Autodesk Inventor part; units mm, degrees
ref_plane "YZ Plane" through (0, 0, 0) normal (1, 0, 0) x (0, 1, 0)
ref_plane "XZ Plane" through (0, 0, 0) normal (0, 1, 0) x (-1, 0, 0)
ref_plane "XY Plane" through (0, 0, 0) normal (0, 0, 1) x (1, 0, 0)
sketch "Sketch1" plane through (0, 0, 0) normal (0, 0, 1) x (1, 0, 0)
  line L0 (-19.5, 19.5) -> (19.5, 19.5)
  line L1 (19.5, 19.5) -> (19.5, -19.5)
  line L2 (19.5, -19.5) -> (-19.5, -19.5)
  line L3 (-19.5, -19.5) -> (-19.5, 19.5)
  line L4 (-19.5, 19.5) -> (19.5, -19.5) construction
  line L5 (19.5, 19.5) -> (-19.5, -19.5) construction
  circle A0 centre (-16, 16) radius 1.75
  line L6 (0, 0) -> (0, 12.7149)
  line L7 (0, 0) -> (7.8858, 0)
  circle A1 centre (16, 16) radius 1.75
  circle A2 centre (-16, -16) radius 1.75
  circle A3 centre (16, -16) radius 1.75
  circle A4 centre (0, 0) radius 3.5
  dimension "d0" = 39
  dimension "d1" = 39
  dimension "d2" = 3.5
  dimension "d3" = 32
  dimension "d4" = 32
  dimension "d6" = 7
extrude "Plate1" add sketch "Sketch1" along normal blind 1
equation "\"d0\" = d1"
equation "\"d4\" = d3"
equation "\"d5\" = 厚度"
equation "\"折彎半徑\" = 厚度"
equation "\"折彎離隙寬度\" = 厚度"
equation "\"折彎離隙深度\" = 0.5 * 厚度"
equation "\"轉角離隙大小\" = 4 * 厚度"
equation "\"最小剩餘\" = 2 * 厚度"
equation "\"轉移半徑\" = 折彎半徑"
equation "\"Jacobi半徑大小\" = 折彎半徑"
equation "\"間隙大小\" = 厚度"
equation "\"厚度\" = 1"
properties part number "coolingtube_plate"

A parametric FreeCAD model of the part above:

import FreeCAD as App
import Part
import Sketcher
Q = App.Units.Quantity

doc = App.newDocument("Part")
body = doc.addObject("PartDesign::Body", "Body")

# Sketch on XY plane
sketch1 = body.newObject("Sketcher::SketchObject", "Sketch")
sketch1.AttachmentSupport = (doc.getObject("XY_Plane"), [""])
sketch1.MapMode = "FlatFace"
sketch1.addGeometry([
    Part.LineSegment(App.Vector(19.5, 19.5, 0), App.Vector(-19.5, 19.5, 0)),  # 0
    Part.LineSegment(App.Vector(-19.5, 19.5, 0), App.Vector(-19.5, -19.5, 0)),  # 1
    Part.LineSegment(App.Vector(-19.5, -19.5, 0), App.Vector(19.5, -19.5, 0)),  # 2
    Part.LineSegment(App.Vector(19.5, -19.5, 0), App.Vector(19.5, 19.5, 0)),  # 3
    Part.Circle(App.Vector(-16, -16, 0), App.Vector(0, 0, 1), 1.8),  # 4
    Part.Circle(App.Vector(16, -16, 0), App.Vector(0, 0, 1), 1.8),  # 5
    Part.Circle(App.Vector(-16, 16, 0), App.Vector(0, 0, 1), 1.8),  # 6
    Part.Circle(App.Vector(0, 0, 0), App.Vector(0, 0, 1), 3.5),  # 7
    Part.Circle(App.Vector(16, 16, 0), App.Vector(0, 0, 1), 1.8),  # 8
], False)
sketch1.addConstraint([
    Sketcher.Constraint("Coincident", 0, 2, 1, 1),
    Sketcher.Constraint("Coincident", 1, 2, 2, 1),
    Sketcher.Constraint("Coincident", 2, 2, 3, 1),
    Sketcher.Constraint("Coincident", 3, 2, 0, 1),
    Sketcher.Constraint("Horizontal", 0),
    Sketcher.Constraint("Vertical", 1),
    Sketcher.Constraint("Horizontal", 2),
    Sketcher.Constraint("Vertical", 3),
    Sketcher.Constraint("Coincident", 7, 3, -1, 1),
    Sketcher.Constraint("Equal", 4, 5),
    Sketcher.Constraint("Equal", 5, 6),
    Sketcher.Constraint("Equal", 6, 8),
    Sketcher.Constraint("Symmetric", 5, 3, 6, 3, -1, 1),
    Sketcher.Constraint("Symmetric", 4, 3, 8, 3, -1, 1),
    Sketcher.Constraint("Symmetric", 0, 2, 2, 2, -1, 1),
    Sketcher.Constraint("Symmetric", 4, 3, 5, 3, -2),
    Sketcher.Constraint("Equal", 2, 1),
    Sketcher.Constraint("Diameter", 7, Q("7 mm")),
    Sketcher.Constraint("Diameter", 4, Q("3.5 mm")),
    Sketcher.Constraint("DistanceX", 0, 2, 0, 1, Q("39 mm")),
    Sketcher.Constraint("DistanceX", 4, 3, 5, 3, Q("32 mm")),
    Sketcher.Constraint("DistanceY", 4, 3, 6, 3, Q("32 mm")),
])
pad1 = body.newObject("PartDesign::Pad", "Pad")
pad1.Profile = sketch1
pad1.Length = 1

doc.recompute()
